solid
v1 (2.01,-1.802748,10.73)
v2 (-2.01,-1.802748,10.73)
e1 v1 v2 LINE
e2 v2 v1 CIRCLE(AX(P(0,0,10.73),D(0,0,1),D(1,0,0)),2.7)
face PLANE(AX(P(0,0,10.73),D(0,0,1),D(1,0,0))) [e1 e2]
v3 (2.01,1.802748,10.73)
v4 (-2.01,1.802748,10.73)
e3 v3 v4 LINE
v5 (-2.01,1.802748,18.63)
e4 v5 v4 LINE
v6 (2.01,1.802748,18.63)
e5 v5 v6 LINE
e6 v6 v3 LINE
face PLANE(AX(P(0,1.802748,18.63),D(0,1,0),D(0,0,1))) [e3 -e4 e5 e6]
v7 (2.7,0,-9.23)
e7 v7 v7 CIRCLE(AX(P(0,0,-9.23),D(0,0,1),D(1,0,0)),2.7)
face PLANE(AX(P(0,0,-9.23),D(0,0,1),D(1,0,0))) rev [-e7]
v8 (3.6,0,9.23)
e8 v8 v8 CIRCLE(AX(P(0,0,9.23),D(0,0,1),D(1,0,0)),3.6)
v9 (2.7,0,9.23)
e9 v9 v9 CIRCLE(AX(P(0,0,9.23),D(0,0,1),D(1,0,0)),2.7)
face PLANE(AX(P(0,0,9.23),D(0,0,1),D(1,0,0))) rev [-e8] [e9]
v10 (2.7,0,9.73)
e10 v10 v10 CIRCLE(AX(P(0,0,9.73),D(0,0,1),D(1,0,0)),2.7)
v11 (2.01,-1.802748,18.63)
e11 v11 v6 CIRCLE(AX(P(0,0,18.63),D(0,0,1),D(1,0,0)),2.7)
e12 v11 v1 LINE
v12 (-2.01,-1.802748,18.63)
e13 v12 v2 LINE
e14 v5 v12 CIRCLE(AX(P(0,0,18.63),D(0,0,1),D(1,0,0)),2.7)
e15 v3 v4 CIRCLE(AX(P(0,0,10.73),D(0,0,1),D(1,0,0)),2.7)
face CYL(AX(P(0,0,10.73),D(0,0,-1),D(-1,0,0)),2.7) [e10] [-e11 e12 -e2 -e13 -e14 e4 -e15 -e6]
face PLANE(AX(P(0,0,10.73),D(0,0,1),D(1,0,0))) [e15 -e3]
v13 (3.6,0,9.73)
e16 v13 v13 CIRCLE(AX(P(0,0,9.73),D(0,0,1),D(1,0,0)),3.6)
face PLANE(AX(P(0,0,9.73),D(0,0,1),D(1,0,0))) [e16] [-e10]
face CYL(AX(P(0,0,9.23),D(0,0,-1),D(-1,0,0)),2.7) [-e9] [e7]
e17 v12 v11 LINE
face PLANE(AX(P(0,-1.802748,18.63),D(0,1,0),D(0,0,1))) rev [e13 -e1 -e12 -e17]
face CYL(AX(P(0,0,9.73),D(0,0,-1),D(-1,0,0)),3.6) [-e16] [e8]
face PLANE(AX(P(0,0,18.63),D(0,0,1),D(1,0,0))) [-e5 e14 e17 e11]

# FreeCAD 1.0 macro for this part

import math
import FreeCAD as App
import Part
import Sketcher
from FreeCAD import Vector
Q = App.Units.Quantity

doc = App.newDocument("Part")
params = doc.addObject("Spreadsheet::Sheet", "Params")
for row, (alias, value) in enumerate([
    ("sketch1_diameter", "5.4 mm"),
    ("pad1_length", "18.46 mm"),
    ("sketch2_diameter", "7.2 mm"),
    ("pad2_length", "0.5 mm"),
    ("sketch3_diameter", "5.4 mm"),
    ("pad3_length", "1 mm"),
    ("sketch4_radius", "2.7 mm"),
    ("sketch4_width", "4.02 mm"),
    ("pad4_length", "8.9 mm"),
], start=1):
    params.set(f"A{row}", alias)
    params.set(f"B{row}", "=" + value)
    params.setAlias(f"B{row}", alias)

body = doc.addObject("PartDesign::Body", "Body")

# Sketch on XY plane
sketch1 = doc.addObject("Sketcher::SketchObject", "Sketch")
body.addObject(sketch1)
sketch1.AttachmentSupport = (doc.XY_Plane, [""])
sketch1.MapMode = "FlatFace"
sketch1.addGeometry(Part.Circle(Vector(0, 0, 0), Vector(0, 0, 1), 2.7), False)
sketch1.addConstraint([
    Sketcher.Constraint("Coincident", 0, 3, -1, 1),
    Sketcher.Constraint("Diameter", 0, Q("5.4 mm")),
])
sketch1.setExpression("Constraints[1]", "Params.sketch1_diameter")
pad1 = doc.addObject("PartDesign::Pad", "Pad")
body.addObject(pad1)
pad1.Profile = sketch1
pad1.setExpression("Length", "Params.pad1_length")
pad1.Midplane = True

# Sketch on XY plane
sketch2 = doc.addObject("Sketcher::SketchObject", "Sketch001")
body.addObject(sketch2)
sketch2.AttachmentSupport = (doc.XY_Plane, [""])
sketch2.MapMode = "FlatFace"
sketch2.AttachmentOffset = App.Placement(Vector(0, 0, 9.23), App.Rotation())
sketch2.addGeometry(Part.Circle(Vector(0, 0, 0), Vector(0, 0, 1), 3.6), False)
sketch2.addConstraint([
    Sketcher.Constraint("Coincident", 0, 3, -1, 1),
    Sketcher.Constraint("Diameter", 0, Q("7.2 mm")),
])
sketch2.setExpression("Constraints[1]", "Params.sketch2_diameter")
pad2 = doc.addObject("PartDesign::Pad", "Pad001")
body.addObject(pad2)
pad2.Profile = sketch2
pad2.setExpression("Length", "Params.pad2_length")

# Sketch on XY plane
sketch3 = doc.addObject("Sketcher::SketchObject", "Sketch002")
body.addObject(sketch3)
sketch3.AttachmentSupport = (doc.XY_Plane, [""])
sketch3.MapMode = "FlatFace"
sketch3.AttachmentOffset = App.Placement(Vector(0, 0, 10.73), App.Rotation())
sketch3.addGeometry(Part.Circle(Vector(0, 0, 0), Vector(0, 0, 1), 2.7), False)
sketch3.addConstraint([
    Sketcher.Constraint("Coincident", 0, 3, -1, 1),
    Sketcher.Constraint("Diameter", 0, Q("5.4 mm")),
])
sketch3.setExpression("Constraints[1]", "Params.sketch3_diameter")
pad3 = doc.addObject("PartDesign::Pad", "Pad002")
body.addObject(pad3)
pad3.Profile = sketch3
pad3.setExpression("Length", "Params.pad3_length")
pad3.Reversed = True

# Sketch on XY plane
sketch4 = doc.addObject("Sketcher::SketchObject", "Sketch003")
body.addObject(sketch4)
sketch4.AttachmentSupport = (doc.XY_Plane, [""])
sketch4.MapMode = "FlatFace"
sketch4.AttachmentOffset = App.Placement(Vector(0, 0, 18.63), App.Rotation())
sketch4.addGeometry([
    Part.ArcOfCircle(Part.Circle(Vector(0, 0, 0), Vector(0, 0, 1), 2.7), math.radians(138), math.radians(180)),  # 0
    Part.ArcOfCircle(Part.Circle(Vector(0, 0, 0), Vector(0, 0, 1), 2.7), math.radians(180), math.radians(222)),  # 1
    Part.LineSegment(Vector(-2, -1.8, 0), Vector(2, -1.8, 0)),  # 2
    Part.ArcOfCircle(Part.Circle(Vector(0, 0, 0), Vector(0, 0, 1), 2.7), math.radians(-42), math.radians(0)),  # 3
    Part.ArcOfCircle(Part.Circle(Vector(0, 0, 0), Vector(0, 0, 1), 2.7), math.radians(0), math.radians(42)),  # 4
    Part.LineSegment(Vector(2, 1.8, 0), Vector(-2, 1.8, 0)),  # 5
], False)
sketch4.addConstraint([
    Sketcher.Constraint("Tangent", 0, 2, 1, 1),
    Sketcher.Constraint("Coincident", 1, 2, 2, 1),
    Sketcher.Constraint("Coincident", 2, 2, 3, 1),
    Sketcher.Constraint("Tangent", 3, 2, 4, 1),
    Sketcher.Constraint("Coincident", 4, 2, 5, 1),
    Sketcher.Constraint("Coincident", 5, 2, 0, 1),
    Sketcher.Constraint("Horizontal", 2),
    Sketcher.Constraint("Horizontal", 5),
    Sketcher.Constraint("Coincident", 0, 3, -1, 1),
    Sketcher.Constraint("Coincident", 3, 3, -1, 1),
    Sketcher.Constraint("Equal", 0, 1),
    Sketcher.Constraint("Equal", 1, 3),
    Sketcher.Constraint("Equal", 3, 4),
    Sketcher.Constraint("PointOnObject", 0, 2, -1),
    Sketcher.Constraint("PointOnObject", 3, 2, -1),
    Sketcher.Constraint("Vertical", 2, 2, 4, 2),
    Sketcher.Constraint("Radius", 0, Q("2.7 mm")),
    Sketcher.Constraint("DistanceX", 2, 1, 2, 2, Q("4.02 mm")),
])
sketch4.setExpression("Constraints[16]", "Params.sketch4_radius")
sketch4.setExpression("Constraints[17]", "Params.sketch4_width")
pad4 = doc.addObject("PartDesign::Pad", "Pad003")
body.addObject(pad4)
pad4.Profile = sketch4
pad4.setExpression("Length", "Params.pad4_length")
pad4.Reversed = True

doc.recompute()
